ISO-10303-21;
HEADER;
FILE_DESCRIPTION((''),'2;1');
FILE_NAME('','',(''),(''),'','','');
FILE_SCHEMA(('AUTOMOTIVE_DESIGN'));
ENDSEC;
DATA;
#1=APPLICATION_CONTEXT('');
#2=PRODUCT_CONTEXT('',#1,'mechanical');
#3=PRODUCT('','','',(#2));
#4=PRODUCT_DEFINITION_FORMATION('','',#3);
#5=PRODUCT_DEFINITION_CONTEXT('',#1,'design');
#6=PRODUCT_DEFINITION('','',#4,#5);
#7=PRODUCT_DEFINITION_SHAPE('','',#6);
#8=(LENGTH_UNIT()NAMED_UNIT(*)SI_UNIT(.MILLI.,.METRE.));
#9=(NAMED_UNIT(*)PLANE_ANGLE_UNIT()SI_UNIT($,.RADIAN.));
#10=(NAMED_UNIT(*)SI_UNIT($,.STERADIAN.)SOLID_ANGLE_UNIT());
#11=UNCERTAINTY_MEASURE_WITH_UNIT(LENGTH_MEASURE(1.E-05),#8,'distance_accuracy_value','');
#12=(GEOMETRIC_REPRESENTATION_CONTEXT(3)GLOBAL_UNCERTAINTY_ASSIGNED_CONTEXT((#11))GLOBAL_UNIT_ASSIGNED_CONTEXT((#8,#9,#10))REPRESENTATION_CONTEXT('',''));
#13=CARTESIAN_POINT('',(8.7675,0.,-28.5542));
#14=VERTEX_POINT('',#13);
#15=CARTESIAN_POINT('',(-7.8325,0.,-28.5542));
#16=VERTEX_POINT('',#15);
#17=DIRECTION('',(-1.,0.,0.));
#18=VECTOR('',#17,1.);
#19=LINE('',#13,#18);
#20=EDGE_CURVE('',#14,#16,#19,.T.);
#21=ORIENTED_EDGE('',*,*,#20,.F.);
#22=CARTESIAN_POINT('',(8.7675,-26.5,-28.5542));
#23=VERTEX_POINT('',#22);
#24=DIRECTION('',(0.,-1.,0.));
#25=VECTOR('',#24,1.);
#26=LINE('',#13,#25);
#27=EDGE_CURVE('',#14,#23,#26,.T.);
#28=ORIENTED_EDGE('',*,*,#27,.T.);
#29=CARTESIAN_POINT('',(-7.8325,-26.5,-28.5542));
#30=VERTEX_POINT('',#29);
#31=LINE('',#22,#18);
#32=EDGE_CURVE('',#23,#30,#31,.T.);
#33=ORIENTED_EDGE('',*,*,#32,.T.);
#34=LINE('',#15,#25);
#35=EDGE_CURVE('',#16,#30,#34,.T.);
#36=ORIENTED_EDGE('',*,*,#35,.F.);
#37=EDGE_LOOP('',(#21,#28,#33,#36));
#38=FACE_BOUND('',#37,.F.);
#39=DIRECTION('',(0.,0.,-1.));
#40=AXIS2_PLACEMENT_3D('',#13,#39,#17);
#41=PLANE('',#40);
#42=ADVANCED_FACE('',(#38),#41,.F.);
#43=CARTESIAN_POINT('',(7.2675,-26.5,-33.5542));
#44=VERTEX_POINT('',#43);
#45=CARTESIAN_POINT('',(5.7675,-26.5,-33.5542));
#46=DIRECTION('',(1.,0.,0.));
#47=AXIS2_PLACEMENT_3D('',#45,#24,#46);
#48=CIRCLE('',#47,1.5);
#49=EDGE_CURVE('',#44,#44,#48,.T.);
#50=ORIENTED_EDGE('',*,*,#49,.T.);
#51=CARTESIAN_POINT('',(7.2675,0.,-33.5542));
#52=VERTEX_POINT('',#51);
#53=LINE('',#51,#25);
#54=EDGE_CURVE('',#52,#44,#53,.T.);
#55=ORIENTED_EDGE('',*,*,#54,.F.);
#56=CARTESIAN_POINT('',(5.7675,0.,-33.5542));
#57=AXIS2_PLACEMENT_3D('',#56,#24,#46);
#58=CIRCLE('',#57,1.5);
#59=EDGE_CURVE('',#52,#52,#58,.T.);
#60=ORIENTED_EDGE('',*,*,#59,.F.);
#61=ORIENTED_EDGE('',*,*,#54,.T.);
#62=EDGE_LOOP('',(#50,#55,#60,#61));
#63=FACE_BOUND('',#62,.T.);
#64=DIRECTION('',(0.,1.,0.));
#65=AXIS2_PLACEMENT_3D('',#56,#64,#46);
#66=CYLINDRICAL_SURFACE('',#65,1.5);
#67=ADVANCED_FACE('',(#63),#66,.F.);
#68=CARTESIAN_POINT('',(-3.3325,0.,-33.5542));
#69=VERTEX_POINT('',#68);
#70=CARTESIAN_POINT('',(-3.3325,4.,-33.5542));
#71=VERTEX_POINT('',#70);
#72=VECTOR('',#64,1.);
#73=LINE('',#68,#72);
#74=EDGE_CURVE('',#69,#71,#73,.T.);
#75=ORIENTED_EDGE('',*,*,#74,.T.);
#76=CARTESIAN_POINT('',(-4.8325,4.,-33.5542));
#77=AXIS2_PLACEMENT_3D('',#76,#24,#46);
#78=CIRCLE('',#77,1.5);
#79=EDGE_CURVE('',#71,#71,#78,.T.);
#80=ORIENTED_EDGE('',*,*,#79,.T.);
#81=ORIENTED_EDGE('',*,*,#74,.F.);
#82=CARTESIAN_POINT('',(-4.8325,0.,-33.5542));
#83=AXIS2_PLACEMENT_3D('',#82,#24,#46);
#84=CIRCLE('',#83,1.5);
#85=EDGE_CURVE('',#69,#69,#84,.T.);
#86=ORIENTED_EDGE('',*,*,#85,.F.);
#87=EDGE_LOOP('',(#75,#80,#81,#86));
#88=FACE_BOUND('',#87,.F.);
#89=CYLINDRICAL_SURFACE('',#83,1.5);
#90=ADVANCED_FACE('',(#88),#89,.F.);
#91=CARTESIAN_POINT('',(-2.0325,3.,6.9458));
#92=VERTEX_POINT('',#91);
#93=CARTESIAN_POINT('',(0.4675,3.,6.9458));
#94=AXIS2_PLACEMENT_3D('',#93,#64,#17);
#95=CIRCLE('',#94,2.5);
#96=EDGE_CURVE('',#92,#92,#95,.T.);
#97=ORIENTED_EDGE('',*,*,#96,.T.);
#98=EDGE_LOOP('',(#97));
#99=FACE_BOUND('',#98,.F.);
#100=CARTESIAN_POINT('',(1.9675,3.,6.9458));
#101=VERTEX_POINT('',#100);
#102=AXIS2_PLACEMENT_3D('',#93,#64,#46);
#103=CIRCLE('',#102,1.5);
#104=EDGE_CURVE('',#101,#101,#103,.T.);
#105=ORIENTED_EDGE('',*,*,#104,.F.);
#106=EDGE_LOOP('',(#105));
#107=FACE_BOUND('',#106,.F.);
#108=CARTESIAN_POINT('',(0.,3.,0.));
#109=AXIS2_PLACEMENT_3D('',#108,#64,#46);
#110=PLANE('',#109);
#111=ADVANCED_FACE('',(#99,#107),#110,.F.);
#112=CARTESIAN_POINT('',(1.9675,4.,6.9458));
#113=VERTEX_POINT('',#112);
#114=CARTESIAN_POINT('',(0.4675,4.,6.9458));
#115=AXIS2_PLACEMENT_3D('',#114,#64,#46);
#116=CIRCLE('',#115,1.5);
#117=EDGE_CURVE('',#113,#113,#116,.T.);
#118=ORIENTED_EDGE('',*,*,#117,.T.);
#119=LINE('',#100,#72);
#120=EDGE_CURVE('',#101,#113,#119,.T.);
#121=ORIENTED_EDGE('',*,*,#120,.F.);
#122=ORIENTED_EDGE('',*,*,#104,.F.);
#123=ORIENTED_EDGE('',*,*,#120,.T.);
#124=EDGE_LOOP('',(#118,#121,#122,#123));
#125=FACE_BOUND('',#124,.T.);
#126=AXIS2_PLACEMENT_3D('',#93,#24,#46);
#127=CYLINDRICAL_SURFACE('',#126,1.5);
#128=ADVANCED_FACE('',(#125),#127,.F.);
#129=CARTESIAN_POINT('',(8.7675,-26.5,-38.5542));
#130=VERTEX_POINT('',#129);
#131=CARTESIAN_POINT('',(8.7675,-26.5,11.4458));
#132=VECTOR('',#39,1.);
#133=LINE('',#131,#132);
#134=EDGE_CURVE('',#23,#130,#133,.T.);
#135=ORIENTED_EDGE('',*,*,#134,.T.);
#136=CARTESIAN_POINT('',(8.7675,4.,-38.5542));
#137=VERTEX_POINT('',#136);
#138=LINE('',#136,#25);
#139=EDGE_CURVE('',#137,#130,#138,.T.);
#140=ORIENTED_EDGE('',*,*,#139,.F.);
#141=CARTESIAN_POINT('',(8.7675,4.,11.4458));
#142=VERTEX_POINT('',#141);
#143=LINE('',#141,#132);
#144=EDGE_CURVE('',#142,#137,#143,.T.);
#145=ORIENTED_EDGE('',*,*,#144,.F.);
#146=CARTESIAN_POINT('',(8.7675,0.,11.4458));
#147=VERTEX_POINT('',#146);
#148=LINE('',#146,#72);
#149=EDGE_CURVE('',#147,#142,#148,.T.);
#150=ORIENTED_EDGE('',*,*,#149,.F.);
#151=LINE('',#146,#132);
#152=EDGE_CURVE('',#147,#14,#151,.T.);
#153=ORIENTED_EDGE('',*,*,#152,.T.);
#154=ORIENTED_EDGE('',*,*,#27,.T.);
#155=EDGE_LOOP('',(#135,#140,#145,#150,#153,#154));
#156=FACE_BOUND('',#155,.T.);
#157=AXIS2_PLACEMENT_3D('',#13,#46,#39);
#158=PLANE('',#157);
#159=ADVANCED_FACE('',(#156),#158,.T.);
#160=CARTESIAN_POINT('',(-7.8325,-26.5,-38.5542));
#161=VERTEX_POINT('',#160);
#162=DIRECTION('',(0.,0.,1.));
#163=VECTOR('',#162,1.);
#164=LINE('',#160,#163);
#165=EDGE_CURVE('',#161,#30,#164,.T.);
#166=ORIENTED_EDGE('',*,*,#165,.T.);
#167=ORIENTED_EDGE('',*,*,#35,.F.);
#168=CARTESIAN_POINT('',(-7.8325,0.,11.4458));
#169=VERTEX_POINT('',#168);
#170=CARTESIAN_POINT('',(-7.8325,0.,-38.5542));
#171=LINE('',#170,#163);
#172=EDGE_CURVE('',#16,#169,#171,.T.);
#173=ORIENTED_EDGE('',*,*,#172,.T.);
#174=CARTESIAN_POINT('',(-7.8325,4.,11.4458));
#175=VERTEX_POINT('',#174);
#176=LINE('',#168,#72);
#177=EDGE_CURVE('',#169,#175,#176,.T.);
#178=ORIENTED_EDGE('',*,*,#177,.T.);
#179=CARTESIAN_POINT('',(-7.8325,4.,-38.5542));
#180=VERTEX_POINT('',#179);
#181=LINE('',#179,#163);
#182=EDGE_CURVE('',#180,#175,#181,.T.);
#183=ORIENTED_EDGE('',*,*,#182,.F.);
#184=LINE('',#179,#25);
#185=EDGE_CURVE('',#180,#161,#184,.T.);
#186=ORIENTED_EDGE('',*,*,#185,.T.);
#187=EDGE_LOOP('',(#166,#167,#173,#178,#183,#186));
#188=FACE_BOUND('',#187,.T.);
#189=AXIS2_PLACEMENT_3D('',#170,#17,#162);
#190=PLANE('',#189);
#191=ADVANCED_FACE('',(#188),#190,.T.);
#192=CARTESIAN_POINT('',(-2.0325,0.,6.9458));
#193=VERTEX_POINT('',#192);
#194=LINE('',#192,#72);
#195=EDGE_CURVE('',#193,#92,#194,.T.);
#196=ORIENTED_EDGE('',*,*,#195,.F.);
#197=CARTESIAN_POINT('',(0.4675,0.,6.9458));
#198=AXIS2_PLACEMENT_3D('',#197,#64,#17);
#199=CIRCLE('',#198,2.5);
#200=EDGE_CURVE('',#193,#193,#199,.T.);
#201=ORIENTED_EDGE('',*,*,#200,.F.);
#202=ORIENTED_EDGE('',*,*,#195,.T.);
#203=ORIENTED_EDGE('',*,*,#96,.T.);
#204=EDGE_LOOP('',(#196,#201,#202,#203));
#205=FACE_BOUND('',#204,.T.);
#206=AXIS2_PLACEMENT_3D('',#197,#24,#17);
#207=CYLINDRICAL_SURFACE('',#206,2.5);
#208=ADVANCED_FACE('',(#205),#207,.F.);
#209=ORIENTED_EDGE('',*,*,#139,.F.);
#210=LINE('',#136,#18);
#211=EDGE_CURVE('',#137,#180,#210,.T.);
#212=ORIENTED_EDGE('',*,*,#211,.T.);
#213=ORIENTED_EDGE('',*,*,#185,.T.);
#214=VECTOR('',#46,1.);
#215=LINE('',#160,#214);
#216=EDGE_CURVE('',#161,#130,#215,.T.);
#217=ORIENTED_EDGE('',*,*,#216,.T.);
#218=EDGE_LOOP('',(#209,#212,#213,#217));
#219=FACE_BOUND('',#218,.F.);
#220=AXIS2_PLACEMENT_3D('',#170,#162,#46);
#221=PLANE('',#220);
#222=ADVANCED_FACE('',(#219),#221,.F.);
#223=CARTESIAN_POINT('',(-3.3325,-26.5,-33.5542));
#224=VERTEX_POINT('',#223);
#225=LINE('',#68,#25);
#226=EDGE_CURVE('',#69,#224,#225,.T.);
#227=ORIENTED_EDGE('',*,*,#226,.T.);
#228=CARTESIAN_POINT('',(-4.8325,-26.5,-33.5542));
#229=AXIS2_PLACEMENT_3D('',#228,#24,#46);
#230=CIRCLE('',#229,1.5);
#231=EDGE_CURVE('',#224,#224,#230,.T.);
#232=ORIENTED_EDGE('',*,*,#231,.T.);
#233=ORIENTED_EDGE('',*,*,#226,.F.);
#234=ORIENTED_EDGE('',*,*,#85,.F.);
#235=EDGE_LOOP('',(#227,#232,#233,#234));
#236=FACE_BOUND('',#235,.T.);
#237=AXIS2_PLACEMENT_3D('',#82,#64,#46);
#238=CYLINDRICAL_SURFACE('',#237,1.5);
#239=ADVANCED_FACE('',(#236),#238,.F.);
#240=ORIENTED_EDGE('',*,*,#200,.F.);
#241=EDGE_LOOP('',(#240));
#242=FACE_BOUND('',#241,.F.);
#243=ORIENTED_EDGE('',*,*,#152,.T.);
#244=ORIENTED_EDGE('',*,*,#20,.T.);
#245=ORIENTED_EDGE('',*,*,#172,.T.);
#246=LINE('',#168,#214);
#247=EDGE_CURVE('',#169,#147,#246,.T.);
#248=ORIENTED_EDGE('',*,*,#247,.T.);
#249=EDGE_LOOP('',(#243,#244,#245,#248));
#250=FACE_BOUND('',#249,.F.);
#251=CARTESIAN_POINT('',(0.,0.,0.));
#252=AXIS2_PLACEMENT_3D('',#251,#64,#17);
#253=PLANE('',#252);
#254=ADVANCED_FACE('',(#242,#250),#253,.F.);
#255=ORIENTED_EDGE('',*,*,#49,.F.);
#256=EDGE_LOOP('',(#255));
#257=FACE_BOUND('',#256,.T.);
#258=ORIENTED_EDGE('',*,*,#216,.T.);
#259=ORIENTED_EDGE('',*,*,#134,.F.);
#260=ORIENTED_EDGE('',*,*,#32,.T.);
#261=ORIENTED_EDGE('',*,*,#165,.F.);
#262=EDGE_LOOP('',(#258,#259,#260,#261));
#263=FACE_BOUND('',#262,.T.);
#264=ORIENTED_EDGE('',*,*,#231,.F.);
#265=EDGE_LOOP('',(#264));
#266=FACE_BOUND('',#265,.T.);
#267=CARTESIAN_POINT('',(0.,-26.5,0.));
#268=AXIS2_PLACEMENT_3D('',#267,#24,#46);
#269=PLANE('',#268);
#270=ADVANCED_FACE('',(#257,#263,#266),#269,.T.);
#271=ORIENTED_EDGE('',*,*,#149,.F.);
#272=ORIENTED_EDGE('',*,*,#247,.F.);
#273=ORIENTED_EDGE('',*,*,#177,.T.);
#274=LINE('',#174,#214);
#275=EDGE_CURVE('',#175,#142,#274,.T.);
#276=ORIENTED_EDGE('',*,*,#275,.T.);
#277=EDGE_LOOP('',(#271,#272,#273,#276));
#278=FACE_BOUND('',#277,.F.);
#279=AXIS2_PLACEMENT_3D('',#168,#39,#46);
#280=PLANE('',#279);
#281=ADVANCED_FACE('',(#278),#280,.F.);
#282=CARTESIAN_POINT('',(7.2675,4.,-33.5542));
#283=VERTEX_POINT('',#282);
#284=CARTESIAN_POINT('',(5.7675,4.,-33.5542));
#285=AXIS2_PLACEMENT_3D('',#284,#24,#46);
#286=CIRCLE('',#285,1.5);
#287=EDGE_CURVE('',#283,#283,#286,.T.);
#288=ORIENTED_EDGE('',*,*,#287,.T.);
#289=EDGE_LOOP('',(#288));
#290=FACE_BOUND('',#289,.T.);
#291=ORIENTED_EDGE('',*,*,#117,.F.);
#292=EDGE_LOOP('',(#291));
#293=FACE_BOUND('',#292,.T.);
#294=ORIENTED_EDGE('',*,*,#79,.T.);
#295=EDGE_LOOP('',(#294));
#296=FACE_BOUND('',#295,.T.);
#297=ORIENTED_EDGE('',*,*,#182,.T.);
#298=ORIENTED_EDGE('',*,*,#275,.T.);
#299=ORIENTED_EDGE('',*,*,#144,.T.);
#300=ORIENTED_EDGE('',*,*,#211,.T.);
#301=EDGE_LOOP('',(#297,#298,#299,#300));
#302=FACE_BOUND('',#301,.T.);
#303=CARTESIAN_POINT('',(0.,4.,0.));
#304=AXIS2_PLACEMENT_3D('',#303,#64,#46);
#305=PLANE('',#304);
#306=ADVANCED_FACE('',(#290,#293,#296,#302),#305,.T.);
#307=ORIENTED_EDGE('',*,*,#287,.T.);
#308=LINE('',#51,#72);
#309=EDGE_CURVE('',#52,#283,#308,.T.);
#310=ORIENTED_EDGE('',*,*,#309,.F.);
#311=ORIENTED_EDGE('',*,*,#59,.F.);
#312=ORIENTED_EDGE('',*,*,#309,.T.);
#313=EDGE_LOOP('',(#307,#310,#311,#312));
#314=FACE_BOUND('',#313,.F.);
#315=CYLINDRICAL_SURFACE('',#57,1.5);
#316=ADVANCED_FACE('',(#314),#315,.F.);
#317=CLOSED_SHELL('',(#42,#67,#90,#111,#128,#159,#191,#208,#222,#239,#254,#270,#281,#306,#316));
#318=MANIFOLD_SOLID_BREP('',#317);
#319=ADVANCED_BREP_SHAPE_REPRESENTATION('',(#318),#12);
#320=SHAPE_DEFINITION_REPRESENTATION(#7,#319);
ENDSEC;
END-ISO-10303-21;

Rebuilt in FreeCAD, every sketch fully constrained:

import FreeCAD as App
import Part
import Sketcher
Q = App.Units.Quantity

doc = App.newDocument("Part")
body = doc.addObject("PartDesign::Body", "Body")

sketch1 = body.newObject("Sketcher::SketchObject", "Sketch")
sketch1.AttachmentSupport = (doc.getObject("XZ_Plane"), [""])
sketch1.MapMode = "FlatFace"
sketch1.addGeometry([
    Part.LineSegment(App.Vector(-7.8, -38.6, 0), App.Vector(-7.8, 11.4, 0)),
    Part.LineSegment(App.Vector(-7.8, 11.4, 0), App.Vector(8.8, 11.4, 0)),
    Part.LineSegment(App.Vector(8.8, 11.4, 0), App.Vector(8.8, -38.6, 0)),
    Part.LineSegment(App.Vector(8.8, -38.6, 0), App.Vector(-7.8, -38.6, 0)),
    Part.Circle(App.Vector(0.5, 6.9, 0), App.Vector(0, 0, 1), 2.5),
], False)
sketch1.addConstraint([
    Sketcher.Constraint("Coincident", 0, 2, 1, 1),
    Sketcher.Constraint("Coincident", 1, 2, 2, 1),
    Sketcher.Constraint("Coincident", 2, 2, 3, 1),
    Sketcher.Constraint("Coincident", 3, 2, 0, 1),
    Sketcher.Constraint("Vertical", 0),
    Sketcher.Constraint("Horizontal", 1),
    Sketcher.Constraint("Vertical", 2),
    Sketcher.Constraint("Horizontal", 3),
    Sketcher.Constraint("Diameter", 4, Q("5 mm")),
    Sketcher.Constraint("DistanceY", 0, 1, 0, 2, Q("50 mm")),
    Sketcher.Constraint("DistanceX", 1, 1, 1, 2, Q("16.6 mm")),
    Sketcher.Constraint("DistanceX", 0, 2, 4, 3, Q("8.3 mm")),
    Sketcher.Constraint("DistanceY", 4, 3, 0, 2, Q("4.5 mm")),
    Sketcher.Constraint("DistanceX", -1, 1, 4, 3, Q("0.4675 mm")),
    Sketcher.Constraint("DistanceY", -1, 1, 4, 3, Q("6.9458 mm")),
])
pad1 = body.newObject("PartDesign::Pad", "Pad")
pad1.Profile = sketch1
pad1.Length = 3
pad1.Reversed = True

sketch2 = body.newObject("Sketcher::SketchObject", "Sketch001")
sketch2.AttachmentSupport = (doc.getObject("XZ_Plane"), [""])
sketch2.MapMode = "FlatFace"
sketch2.AttachmentOffset = App.Placement(App.Vector(0, 0, -3), App.Rotation())
sketch2.addGeometry([
    Part.LineSegment(App.Vector(8.8, -38.6, 0), App.Vector(-7.8, -38.6, 0)),
    Part.LineSegment(App.Vector(-7.8, -38.6, 0), App.Vector(-7.8, 11.4, 0)),
    Part.LineSegment(App.Vector(-7.8, 11.4, 0), App.Vector(8.8, 11.4, 0)),
    Part.LineSegment(App.Vector(8.8, 11.4, 0), App.Vector(8.8, -38.6, 0)),
    Part.Circle(App.Vector(0.5, 6.9, 0), App.Vector(0, 0, 1), 1.5),
], False)
sketch2.addConstraint([
    Sketcher.Constraint("Coincident", 0, 2, 1, 1),
    Sketcher.Constraint("Coincident", 1, 2, 2, 1),
    Sketcher.Constraint("Coincident", 2, 2, 3, 1),
    Sketcher.Constraint("Coincident", 3, 2, 0, 1),
    Sketcher.Constraint("Horizontal", 0),
    Sketcher.Constraint("Vertical", 1),
    Sketcher.Constraint("Horizontal", 2),
    Sketcher.Constraint("Vertical", 3),
    Sketcher.Constraint("Diameter", 4, Q("3 mm")),
    Sketcher.Constraint("DistanceY", 1, 1, 1, 2, Q("50 mm")),
    Sketcher.Constraint("DistanceX", 0, 2, 0, 1, Q("16.6 mm")),
    Sketcher.Constraint("DistanceX", 0, 2, 4, 3, Q("8.3 mm")),
    Sketcher.Constraint("DistanceY", 0, 2, 4, 3, Q("45.5 mm")),
    Sketcher.Constraint("DistanceX", -1, 1, 4, 3, Q("0.4675 mm")),
    Sketcher.Constraint("DistanceY", -1, 1, 4, 3, Q("6.9458 mm")),
])
pad2 = body.newObject("PartDesign::Pad", "Pad001")
pad2.Profile = sketch2
pad2.Length = 1
pad2.Reversed = True

sketch3 = body.newObject("Sketcher::SketchObject", "Sketch002")
sketch3.AttachmentSupport = (doc.getObject("XZ_Plane"), [""])
sketch3.MapMode = "FlatFace"
sketch3.addGeometry([
    Part.LineSegment(App.Vector(-7.8, -28.6, 0), App.Vector(-7.8, -38.6, 0)),
    Part.LineSegment(App.Vector(-7.8, -38.6, 0), App.Vector(8.8, -38.6, 0)),
    Part.LineSegment(App.Vector(8.8, -38.6, 0), App.Vector(8.8, -28.6, 0)),
    Part.LineSegment(App.Vector(8.8, -28.6, 0), App.Vector(-7.8, -28.6, 0)),
    Part.Circle(App.Vector(-4.8, -33.6, 0), App.Vector(0, 0, 1), 1.5),
    Part.Circle(App.Vector(5.8, -33.6, 0), App.Vector(0, 0, 1), 1.5),
], False)
sketch3.addConstraint([
    Sketcher.Constraint("Coincident", 0, 2, 1, 1),
    Sketcher.Constraint("Coincident", 1, 2, 2, 1),
    Sketcher.Constraint("Coincident", 2, 2, 3, 1),
    Sketcher.Constraint("Coincident", 3, 2, 0, 1),
    Sketcher.Constraint("Vertical", 0),
    Sketcher.Constraint("Horizontal", 1),
    Sketcher.Constraint("Vertical", 2),
    Sketcher.Constraint("Horizontal", 3),
    Sketcher.Constraint("Equal", 4, 5),
    Sketcher.Constraint("Horizontal", 4, 3, 5, 3),
    Sketcher.Constraint("Diameter", 4, Q("3 mm")),
    Sketcher.Constraint("DistanceY", 0, 2, 0, 1, Q("10 mm")),
    Sketcher.Constraint("DistanceX", 0, 2, 4, 3, Q("3 mm")),
    Sketcher.Constraint("DistanceY", 0, 2, 4, 3, Q("5 mm")),
    Sketcher.Constraint("DistanceX", 5, 3, 1, 2, Q("3 mm")),
    Sketcher.Constraint("DistanceX", 1, 1, 1, 2, Q("16.6 mm")),
    Sketcher.Constraint("DistanceX", 4, 3, -1, 1, Q("4.8325 mm")),
    Sketcher.Constraint("DistanceY", 4, 3, -1, 1, Q("33.5542 mm")),
])
pad3 = body.newObject("PartDesign::Pad", "Pad002")
pad3.Profile = sketch3
pad3.Length = 26.5

sketch4 = body.newObject("Sketcher::SketchObject", "Sketch003")
sketch4.AttachmentSupport = (doc.getObject("XZ_Plane"), [""])
sketch4.MapMode = "FlatFace"
sketch4.addGeometry([
    Part.Circle(App.Vector(5.8, -33.6, 0), App.Vector(0, 0, 1), 1.5),
    Part.Circle(App.Vector(-4.8, -33.6, 0), App.Vector(0, 0, 1), 1.5),
], False)
sketch4.addConstraint([
    Sketcher.Constraint("Equal", 0, 1),
    Sketcher.Constraint("Horizontal", 0, 3, 1, 3),
    Sketcher.Constraint("Diameter", 0, Q("3 mm")),
    Sketcher.Constraint("DistanceX", 1, 3, 0, 3, Q("10.6 mm")),
    Sketcher.Constraint("DistanceX", -1, 1, 0, 3, Q("5.7675 mm")),
    Sketcher.Constraint("DistanceY", 0, 3, -1, 1, Q("33.5542 mm")),
])
pocket1 = body.newObject("PartDesign::Pocket", "Pocket")
pocket1.Profile = sketch4
pocket1.Length = 21

doc.recompute()
